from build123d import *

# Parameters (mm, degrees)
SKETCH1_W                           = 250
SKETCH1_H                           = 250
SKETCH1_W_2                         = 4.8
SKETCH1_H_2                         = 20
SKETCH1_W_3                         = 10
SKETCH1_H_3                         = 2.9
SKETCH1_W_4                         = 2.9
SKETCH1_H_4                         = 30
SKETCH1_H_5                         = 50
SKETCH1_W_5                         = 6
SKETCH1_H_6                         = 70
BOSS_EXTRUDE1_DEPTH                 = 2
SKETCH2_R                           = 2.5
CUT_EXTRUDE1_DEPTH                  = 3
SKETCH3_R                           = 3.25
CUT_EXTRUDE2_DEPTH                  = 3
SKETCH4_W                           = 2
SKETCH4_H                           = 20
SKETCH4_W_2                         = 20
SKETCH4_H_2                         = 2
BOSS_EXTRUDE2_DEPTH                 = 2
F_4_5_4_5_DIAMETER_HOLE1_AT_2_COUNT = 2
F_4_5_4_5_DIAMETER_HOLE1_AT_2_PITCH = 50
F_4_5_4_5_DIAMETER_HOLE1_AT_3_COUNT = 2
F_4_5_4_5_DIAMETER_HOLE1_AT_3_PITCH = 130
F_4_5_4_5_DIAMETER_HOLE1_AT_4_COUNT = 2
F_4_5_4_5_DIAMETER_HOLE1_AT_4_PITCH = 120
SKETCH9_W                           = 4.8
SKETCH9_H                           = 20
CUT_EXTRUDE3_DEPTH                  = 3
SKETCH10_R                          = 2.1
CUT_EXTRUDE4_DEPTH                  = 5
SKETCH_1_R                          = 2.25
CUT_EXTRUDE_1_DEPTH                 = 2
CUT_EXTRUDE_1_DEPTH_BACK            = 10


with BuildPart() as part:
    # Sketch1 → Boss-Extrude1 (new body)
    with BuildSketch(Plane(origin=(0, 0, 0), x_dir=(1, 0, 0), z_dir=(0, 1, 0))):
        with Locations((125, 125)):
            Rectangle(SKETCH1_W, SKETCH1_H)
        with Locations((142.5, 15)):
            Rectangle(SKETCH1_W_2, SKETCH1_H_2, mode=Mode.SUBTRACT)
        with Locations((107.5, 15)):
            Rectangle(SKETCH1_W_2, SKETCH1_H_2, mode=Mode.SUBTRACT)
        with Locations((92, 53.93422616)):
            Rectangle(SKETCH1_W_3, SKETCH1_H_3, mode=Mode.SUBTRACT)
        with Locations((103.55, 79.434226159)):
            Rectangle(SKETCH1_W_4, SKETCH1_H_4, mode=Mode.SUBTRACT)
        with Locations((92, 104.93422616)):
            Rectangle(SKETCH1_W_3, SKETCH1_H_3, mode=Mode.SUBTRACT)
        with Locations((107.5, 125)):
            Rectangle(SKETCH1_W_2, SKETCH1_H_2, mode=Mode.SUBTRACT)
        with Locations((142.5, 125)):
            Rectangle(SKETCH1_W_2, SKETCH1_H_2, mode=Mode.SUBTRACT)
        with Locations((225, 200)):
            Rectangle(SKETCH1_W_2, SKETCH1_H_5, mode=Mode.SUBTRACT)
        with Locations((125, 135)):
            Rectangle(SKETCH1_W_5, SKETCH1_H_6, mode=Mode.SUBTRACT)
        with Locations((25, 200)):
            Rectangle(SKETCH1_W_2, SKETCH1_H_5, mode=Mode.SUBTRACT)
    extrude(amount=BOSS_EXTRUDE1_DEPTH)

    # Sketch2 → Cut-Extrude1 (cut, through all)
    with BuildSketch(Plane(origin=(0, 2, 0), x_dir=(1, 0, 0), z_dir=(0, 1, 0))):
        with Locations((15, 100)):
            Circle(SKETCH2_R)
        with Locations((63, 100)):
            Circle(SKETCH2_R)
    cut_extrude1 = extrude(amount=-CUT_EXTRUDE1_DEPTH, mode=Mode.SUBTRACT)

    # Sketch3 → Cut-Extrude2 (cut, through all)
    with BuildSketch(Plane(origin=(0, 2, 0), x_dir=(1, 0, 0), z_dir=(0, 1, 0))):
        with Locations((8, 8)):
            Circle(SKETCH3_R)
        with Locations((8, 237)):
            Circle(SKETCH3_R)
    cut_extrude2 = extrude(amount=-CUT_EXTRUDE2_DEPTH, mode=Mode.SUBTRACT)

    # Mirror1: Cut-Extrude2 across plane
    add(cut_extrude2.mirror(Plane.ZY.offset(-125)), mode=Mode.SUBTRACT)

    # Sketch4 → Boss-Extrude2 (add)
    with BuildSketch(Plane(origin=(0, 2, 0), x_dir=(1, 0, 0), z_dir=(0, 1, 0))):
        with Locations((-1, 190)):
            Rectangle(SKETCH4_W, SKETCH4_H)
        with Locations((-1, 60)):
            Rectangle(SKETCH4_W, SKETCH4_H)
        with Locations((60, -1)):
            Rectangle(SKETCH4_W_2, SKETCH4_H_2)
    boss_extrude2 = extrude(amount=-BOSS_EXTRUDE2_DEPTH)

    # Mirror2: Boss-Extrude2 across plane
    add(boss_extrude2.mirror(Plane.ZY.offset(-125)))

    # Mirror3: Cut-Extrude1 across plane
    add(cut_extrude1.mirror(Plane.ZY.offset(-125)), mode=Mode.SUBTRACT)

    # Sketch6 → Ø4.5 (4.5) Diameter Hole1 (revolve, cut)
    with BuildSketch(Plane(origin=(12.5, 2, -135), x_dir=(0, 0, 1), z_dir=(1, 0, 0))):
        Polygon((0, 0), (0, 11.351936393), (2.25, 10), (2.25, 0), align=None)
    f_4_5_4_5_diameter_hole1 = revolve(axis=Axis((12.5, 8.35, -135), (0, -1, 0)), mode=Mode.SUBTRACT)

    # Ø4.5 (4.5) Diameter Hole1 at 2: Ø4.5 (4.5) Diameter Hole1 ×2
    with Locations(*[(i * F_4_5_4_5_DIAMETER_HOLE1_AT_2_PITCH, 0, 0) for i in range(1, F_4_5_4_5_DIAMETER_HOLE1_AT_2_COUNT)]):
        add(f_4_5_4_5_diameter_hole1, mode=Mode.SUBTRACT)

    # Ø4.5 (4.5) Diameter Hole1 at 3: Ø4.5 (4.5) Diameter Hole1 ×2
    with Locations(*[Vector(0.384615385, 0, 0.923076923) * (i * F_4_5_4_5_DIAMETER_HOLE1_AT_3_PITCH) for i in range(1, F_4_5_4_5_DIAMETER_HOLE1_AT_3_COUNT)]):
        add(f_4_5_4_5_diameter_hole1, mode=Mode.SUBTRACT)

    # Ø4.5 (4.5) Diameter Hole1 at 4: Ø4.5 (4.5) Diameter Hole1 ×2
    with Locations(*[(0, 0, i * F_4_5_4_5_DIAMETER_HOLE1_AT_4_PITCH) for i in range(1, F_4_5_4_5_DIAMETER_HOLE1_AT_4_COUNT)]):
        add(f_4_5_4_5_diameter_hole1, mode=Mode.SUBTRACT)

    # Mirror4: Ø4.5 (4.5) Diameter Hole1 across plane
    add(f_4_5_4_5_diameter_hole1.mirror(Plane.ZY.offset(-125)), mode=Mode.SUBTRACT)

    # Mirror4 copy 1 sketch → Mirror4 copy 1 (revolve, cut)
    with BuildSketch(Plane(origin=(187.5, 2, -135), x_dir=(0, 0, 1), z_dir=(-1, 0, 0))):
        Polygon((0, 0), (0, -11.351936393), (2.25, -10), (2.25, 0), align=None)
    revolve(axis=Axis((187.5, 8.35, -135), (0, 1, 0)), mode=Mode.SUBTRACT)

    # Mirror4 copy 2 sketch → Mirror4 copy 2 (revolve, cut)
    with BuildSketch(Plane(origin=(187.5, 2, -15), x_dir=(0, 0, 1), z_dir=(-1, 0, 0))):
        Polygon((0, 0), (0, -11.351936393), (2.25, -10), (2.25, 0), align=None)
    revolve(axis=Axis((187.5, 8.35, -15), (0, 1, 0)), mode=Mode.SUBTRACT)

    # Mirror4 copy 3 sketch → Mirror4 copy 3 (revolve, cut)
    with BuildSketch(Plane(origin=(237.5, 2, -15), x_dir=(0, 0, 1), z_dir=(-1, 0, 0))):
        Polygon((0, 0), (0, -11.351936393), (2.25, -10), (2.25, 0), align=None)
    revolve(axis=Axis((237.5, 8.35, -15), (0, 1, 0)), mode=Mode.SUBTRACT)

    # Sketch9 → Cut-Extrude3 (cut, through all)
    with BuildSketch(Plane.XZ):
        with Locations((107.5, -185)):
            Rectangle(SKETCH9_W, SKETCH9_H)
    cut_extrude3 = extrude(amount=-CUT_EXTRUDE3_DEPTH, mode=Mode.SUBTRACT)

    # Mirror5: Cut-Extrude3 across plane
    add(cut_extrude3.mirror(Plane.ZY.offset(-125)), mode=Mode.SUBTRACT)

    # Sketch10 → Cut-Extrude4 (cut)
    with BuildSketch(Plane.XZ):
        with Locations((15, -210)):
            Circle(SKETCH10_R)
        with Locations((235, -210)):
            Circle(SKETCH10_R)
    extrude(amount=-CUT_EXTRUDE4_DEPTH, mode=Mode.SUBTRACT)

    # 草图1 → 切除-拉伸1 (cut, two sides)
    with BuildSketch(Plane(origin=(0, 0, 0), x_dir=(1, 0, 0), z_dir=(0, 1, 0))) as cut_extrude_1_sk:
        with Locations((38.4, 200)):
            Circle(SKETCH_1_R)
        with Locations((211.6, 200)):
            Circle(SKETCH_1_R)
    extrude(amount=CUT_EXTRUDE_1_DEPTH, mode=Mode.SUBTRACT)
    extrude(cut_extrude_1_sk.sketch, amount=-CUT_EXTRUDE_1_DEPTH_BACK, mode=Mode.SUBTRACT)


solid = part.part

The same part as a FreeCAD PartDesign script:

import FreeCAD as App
import Part
import Sketcher

V = App.Vector
Q = App.Units.Quantity

doc = App.newDocument("Part")
body = doc.addObject("PartDesign::Body", "Body")

# Sketch on XZ plane
sketch1 = doc.addObject("Sketcher::SketchObject", "Sketch")
body.addObject(sketch1)
sketch1.AttachmentSupport = (doc.XZ_Plane, [""])
sketch1.MapMode = "FlatFace"
sketch1.addGeometry(Part.LineSegment(V(0, -250, 0), V(0, 0, 0)), False)
sketch1.addGeometry(Part.LineSegment(V(0, 0, 0), V(250, 0, 0)), False)
sketch1.addGeometry(Part.LineSegment(V(250, 0, 0), V(250, -250, 0)), False)
sketch1.addGeometry(Part.LineSegment(V(250, -250, 0), V(0, -250, 0)), False)
sketch1.addGeometry(Part.LineSegment(V(109.9, -5, 0), V(105.1, -5, 0)), False)
sketch1.addGeometry(Part.LineSegment(V(105.1, -5, 0), V(105.1, -25, 0)), False)
sketch1.addGeometry(Part.LineSegment(V(105.1, -25, 0), V(109.9, -25, 0)), False)
sketch1.addGeometry(Part.LineSegment(V(109.9, -25, 0), V(109.9, -5, 0)), False)
sketch1.addGeometry(Part.LineSegment(V(97, -52.484226, 0), V(87, -52.484226, 0)), False)
sketch1.addGeometry(Part.LineSegment(V(87, -52.484226, 0), V(87, -55.384226, 0)), False)
sketch1.addGeometry(Part.LineSegment(V(87, -55.384226, 0), V(97, -55.384226, 0)), False)
sketch1.addGeometry(Part.LineSegment(V(97, -55.384226, 0), V(97, -52.484226, 0)), False)
sketch1.addGeometry(Part.LineSegment(V(105, -64.434226, 0), V(102.1, -64.434226, 0)), False)
sketch1.addGeometry(Part.LineSegment(V(102.1, -64.434226, 0), V(102.1, -94.434226, 0)), False)
sketch1.addGeometry(Part.LineSegment(V(102.1, -94.434226, 0), V(105, -94.434226, 0)), False)
sketch1.addGeometry(Part.LineSegment(V(105, -94.434226, 0), V(105, -64.434226, 0)), False)
sketch1.addGeometry(Part.LineSegment(V(97, -103.484226, 0), V(87, -103.484226, 0)), False)
sketch1.addGeometry(Part.LineSegment(V(87, -103.484226, 0), V(87, -106.384226, 0)), False)
sketch1.addGeometry(Part.LineSegment(V(87, -106.384226, 0), V(97, -106.384226, 0)), False)
sketch1.addGeometry(Part.LineSegment(V(97, -106.384226, 0), V(97, -103.484226, 0)), False)
sketch1.addGeometry(Part.LineSegment(V(144.9, -5, 0), V(140.1, -5, 0)), False)
sketch1.addGeometry(Part.LineSegment(V(140.1, -5, 0), V(140.1, -25, 0)), False)
sketch1.addGeometry(Part.LineSegment(V(140.1, -25, 0), V(144.9, -25, 0)), False)
sketch1.addGeometry(Part.LineSegment(V(144.9, -25, 0), V(144.9, -5, 0)), False)
sketch1.addGeometry(Part.LineSegment(V(109.9, -115, 0), V(105.1, -115, 0)), False)
sketch1.addGeometry(Part.LineSegment(V(105.1, -115, 0), V(105.1, -135, 0)), False)
sketch1.addGeometry(Part.LineSegment(V(105.1, -135, 0), V(109.9, -135, 0)), False)
sketch1.addGeometry(Part.LineSegment(V(109.9, -135, 0), V(109.9, -115, 0)), False)
sketch1.addGeometry(Part.LineSegment(V(27.4, -175, 0), V(22.6, -175, 0)), False)
sketch1.addGeometry(Part.LineSegment(V(22.6, -175, 0), V(22.6, -225, 0)), False)
sketch1.addGeometry(Part.LineSegment(V(22.6, -225, 0), V(27.4, -225, 0)), False)
sketch1.addGeometry(Part.LineSegment(V(27.4, -225, 0), V(27.4, -175, 0)), False)
sketch1.addGeometry(Part.LineSegment(V(144.9, -115, 0), V(140.1, -115, 0)), False)
sketch1.addGeometry(Part.LineSegment(V(140.1, -115, 0), V(140.1, -135, 0)), False)
sketch1.addGeometry(Part.LineSegment(V(140.1, -135, 0), V(144.9, -135, 0)), False)
sketch1.addGeometry(Part.LineSegment(V(144.9, -135, 0), V(144.9, -115, 0)), False)
sketch1.addGeometry(Part.LineSegment(V(128, -100, 0), V(122, -100, 0)), False)
sketch1.addGeometry(Part.LineSegment(V(122, -100, 0), V(122, -170, 0)), False)
sketch1.addGeometry(Part.LineSegment(V(122, -170, 0), V(128, -170, 0)), False)
sketch1.addGeometry(Part.LineSegment(V(128, -170, 0), V(128, -100, 0)), False)
sketch1.addGeometry(Part.LineSegment(V(227.4, -175, 0), V(222.6, -175, 0)), False)
sketch1.addGeometry(Part.LineSegment(V(222.6, -175, 0), V(222.6, -225, 0)), False)
sketch1.addGeometry(Part.LineSegment(V(222.6, -225, 0), V(227.4, -225, 0)), False)
sketch1.addGeometry(Part.LineSegment(V(227.4, -225, 0), V(227.4, -175, 0)), False)
sketch1.addConstraint(Sketcher.Constraint("Coincident", 0, 2, 1, 1))
sketch1.addConstraint(Sketcher.Constraint("Coincident", 1, 2, 2, 1))
sketch1.addConstraint(Sketcher.Constraint("Coincident", 2, 2, 3, 1))
sketch1.addConstraint(Sketcher.Constraint("Coincident", 3, 2, 0, 1))
sketch1.addConstraint(Sketcher.Constraint("Coincident", 4, 2, 5, 1))
sketch1.addConstraint(Sketcher.Constraint("Coincident", 5, 2, 6, 1))
sketch1.addConstraint(Sketcher.Constraint("Coincident", 6, 2, 7, 1))
sketch1.addConstraint(Sketcher.Constraint("Coincident", 7, 2, 4, 1))
sketch1.addConstraint(Sketcher.Constraint("Coincident", 8, 2, 9, 1))
sketch1.addConstraint(Sketcher.Constraint("Coincident", 9, 2, 10, 1))
sketch1.addConstraint(Sketcher.Constraint("Coincident", 10, 2, 11, 1))
sketch1.addConstraint(Sketcher.Constraint("Coincident", 11, 2, 8, 1))
sketch1.addConstraint(Sketcher.Constraint("Coincident", 12, 2, 13, 1))
sketch1.addConstraint(Sketcher.Constraint("Coincident", 13, 2, 14, 1))
sketch1.addConstraint(Sketcher.Constraint("Coincident", 14, 2, 15, 1))
sketch1.addConstraint(Sketcher.Constraint("Coincident", 15, 2, 12, 1))
sketch1.addConstraint(Sketcher.Constraint("Coincident", 16, 2, 17, 1))
sketch1.addConstraint(Sketcher.Constraint("Coincident", 17, 2, 18, 1))
sketch1.addConstraint(Sketcher.Constraint("Coincident", 18, 2, 19, 1))
sketch1.addConstraint(Sketcher.Constraint("Coincident", 19, 2, 16, 1))
sketch1.addConstraint(Sketcher.Constraint("Coincident", 20, 2, 21, 1))
sketch1.addConstraint(Sketcher.Constraint("Coincident", 21, 2, 22, 1))
sketch1.addConstraint(Sketcher.Constraint("Coincident", 22, 2, 23, 1))
sketch1.addConstraint(Sketcher.Constraint("Coincident", 23, 2, 20, 1))
sketch1.addConstraint(Sketcher.Constraint("Coincident", 24, 2, 25, 1))
sketch1.addConstraint(Sketcher.Constraint("Coincident", 25, 2, 26, 1))
sketch1.addConstraint(Sketcher.Constraint("Coincident", 26, 2, 27, 1))
sketch1.addConstraint(Sketcher.Constraint("Coincident", 27, 2, 24, 1))
sketch1.addConstraint(Sketcher.Constraint("Coincident", 28, 2, 29, 1))
sketch1.addConstraint(Sketcher.Constraint("Coincident", 29, 2, 30, 1))
sketch1.addConstraint(Sketcher.Constraint("Coincident", 30, 2, 31, 1))
sketch1.addConstraint(Sketcher.Constraint("Coincident", 31, 2, 28, 1))
sketch1.addConstraint(Sketcher.Constraint("Coincident", 32, 2, 33, 1))
sketch1.addConstraint(Sketcher.Constraint("Coincident", 33, 2, 34, 1))
sketch1.addConstraint(Sketcher.Constraint("Coincident", 34, 2, 35, 1))
sketch1.addConstraint(Sketcher.Constraint("Coincident", 35, 2, 32, 1))
sketch1.addConstraint(Sketcher.Constraint("Coincident", 36, 2, 37, 1))
sketch1.addConstraint(Sketcher.Constraint("Coincident", 37, 2, 38, 1))
sketch1.addConstraint(Sketcher.Constraint("Coincident", 38, 2, 39, 1))
sketch1.addConstraint(Sketcher.Constraint("Coincident", 39, 2, 36, 1))
sketch1.addConstraint(Sketcher.Constraint("Coincident", 40, 2, 41, 1))
sketch1.addConstraint(Sketcher.Constraint("Coincident", 41, 2, 42, 1))
sketch1.addConstraint(Sketcher.Constraint("Coincident", 42, 2, 43, 1))
sketch1.addConstraint(Sketcher.Constraint("Coincident", 43, 2, 40, 1))
sketch1.addConstraint(Sketcher.Constraint("Vertical", 0))
sketch1.addConstraint(Sketcher.Constraint("Horizontal", 1))
sketch1.addConstraint(Sketcher.Constraint("Vertical", 2))
sketch1.addConstraint(Sketcher.Constraint("Horizontal", 3))
sketch1.addConstraint(Sketcher.Constraint("Horizontal", 4))
sketch1.addConstraint(Sketcher.Constraint("Vertical", 5))
sketch1.addConstraint(Sketcher.Constraint("Horizontal", 6))
sketch1.addConstraint(Sketcher.Constraint("Vertical", 7))
sketch1.addConstraint(Sketcher.Constraint("Horizontal", 8))
sketch1.addConstraint(Sketcher.Constraint("Vertical", 9))
sketch1.addConstraint(Sketcher.Constraint("Horizontal", 10))
sketch1.addConstraint(Sketcher.Constraint("Vertical", 11))
sketch1.addConstraint(Sketcher.Constraint("Horizontal", 12))
sketch1.addConstraint(Sketcher.Constraint("Vertical", 13))
sketch1.addConstraint(Sketcher.Constraint("Horizontal", 14))
sketch1.addConstraint(Sketcher.Constraint("Vertical", 15))
sketch1.addConstraint(Sketcher.Constraint("Horizontal", 16))
sketch1.addConstraint(Sketcher.Constraint("Vertical", 17))
sketch1.addConstraint(Sketcher.Constraint("Horizontal", 18))
sketch1.addConstraint(Sketcher.Constraint("Vertical", 19))
sketch1.addConstraint(Sketcher.Constraint("Horizontal", 20))
sketch1.addConstraint(Sketcher.Constraint("Vertical", 21))
sketch1.addConstraint(Sketcher.Constraint("Horizontal", 22))
sketch1.addConstraint(Sketcher.Constraint("Vertical", 23))
sketch1.addConstraint(Sketcher.Constraint("Horizontal", 24))
sketch1.addConstraint(Sketcher.Constraint("Vertical", 25))
sketch1.addConstraint(Sketcher.Constraint("Horizontal", 26))
sketch1.addConstraint(Sketcher.Constraint("Vertical", 27))
sketch1.addConstraint(Sketcher.Constraint("Horizontal", 28))
sketch1.addConstraint(Sketcher.Constraint("Vertical", 29))
sketch1.addConstraint(Sketcher.Constraint("Horizontal", 30))
sketch1.addConstraint(Sketcher.Constraint("Vertical", 31))
sketch1.addConstraint(Sketcher.Constraint("Horizontal", 32))
sketch1.addConstraint(Sketcher.Constraint("Vertical", 33))
sketch1.addConstraint(Sketcher.Constraint("Horizontal", 34))
sketch1.addConstraint(Sketcher.Constraint("Vertical", 35))
sketch1.addConstraint(Sketcher.Constraint("Horizontal", 36))
sketch1.addConstraint(Sketcher.Constraint("Vertical", 37))
sketch1.addConstraint(Sketcher.Constraint("Horizontal", 38))
sketch1.addConstraint(Sketcher.Constraint("Vertical", 39))
sketch1.addConstraint(Sketcher.Constraint("Horizontal", 40))
sketch1.addConstraint(Sketcher.Constraint("Vertical", 41))
sketch1.addConstraint(Sketcher.Constraint("Horizontal", 42))
sketch1.addConstraint(Sketcher.Constraint("Vertical", 43))
sketch1.addConstraint(Sketcher.Constraint("Coincident", 0, 2, -1, 1))
sketch1.addConstraint(Sketcher.Constraint("Horizontal", 7, 2, 20, 2))
sketch1.addConstraint(Sketcher.Constraint("Horizontal", 6, 2, 21, 2))
sketch1.addConstraint(Sketcher.Constraint("Horizontal", 27, 2, 32, 2))
sketch1.addConstraint(Sketcher.Constraint("Horizontal", 26, 2, 33, 2))
sketch1.addConstraint(Sketcher.Constraint("Horizontal", 31, 2, 40, 2))
sketch1.addConstraint(Sketcher.Constraint("Horizontal", 30, 2, 41, 2))
sketch1.addConstraint(Sketcher.Constraint("Vertical", 9, 2, 16, 2))
sketch1.addConstraint(Sketcher.Constraint("Vertical", 11, 2, 18, 2))
sketch1.addConstraint(Sketcher.Constraint("Vertical", 5, 2, 24, 2))
sketch1.addConstraint(Sketcher.Constraint("Vertical", 7, 2, 26, 2))
sketch1.addConstraint(Sketcher.Constraint("Vertical", 21, 2, 32, 2))
sketch1.addConstraint(Sketcher.Constraint("Vertical", 23, 2, 34, 2))
sketch1.addConstraint(Sketcher.Constraint("Equal", 6, 20))
sketch1.addConstraint(Sketcher.Constraint("Equal", 26, 28))
sketch1.addConstraint(Sketcher.Constraint("Equal", 34, 40))
sketch1.addConstraint(Sketcher.Constraint("Equal", 3, 0))
sketch1.addConstraint(Sketcher.Constraint("Equal", 14, 9))
sketch1.addConstraint(Sketcher.Constraint("Equal", 11, 17))
sketch1.addConstraint(Sketcher.Constraint("Equal", 23, 25))
sketch1.addConstraint(Sketcher.Constraint("DistanceX", 1, 1, 1, 2, 250.0))
sketch1.addConstraint(Sketcher.Constraint("DistanceX", 8, 2, 8, 1, 10.0))
sketch1.addConstraint(Sketcher.Constraint("DistanceX", 36, 2, 36, 1, 6.0))
sketch1.addConstraint(Sketcher.Constraint("DistanceY", 5, 2, 5, 1, 20.0))
sketch1.addConstraint(Sketcher.Constraint("DistanceY", 13, 2, 13, 1, 30.0))
sketch1.addConstraint(Sketcher.Constraint("DistanceY", 29, 2, 29, 1, 50.0))
sketch1.addConstraint(Sketcher.Constraint("DistanceY", 37, 2, 37, 1, 70.0))
sketch1.addConstraint(Sketcher.Constraint("DistanceX", 4, 2, 4, 1, 4.8))
sketch1.addConstraint(Sketcher.Constraint("DistanceX", 12, 2, 12, 1, 2.9))
sketch1.addConstraint(Sketcher.Constraint("DistanceY", 4, 2, -1, 1, 5.0))
sketch1.addConstraint(Sketcher.Constraint("DistanceX", -1, 1, 8, 2, 87.0))
sketch1.addConstraint(Sketcher.Constraint("DistanceX", -1, 1, 14, 2, 105.0))
sketch1.addConstraint(Sketcher.Constraint("DistanceY", 24, 2, -1, 1, 115.0))
sketch1.addConstraint(Sketcher.Constraint("DistanceY", 28, 2, -1, 1, 175.0))
sketch1.addConstraint(Sketcher.Constraint("DistanceX", -1, 1, 36, 2, 122.0))
sketch1.addConstraint(Sketcher.Constraint("DistanceY", 36, 2, -1, 1, 100.0))
sketch1.addConstraint(Sketcher.Constraint("DistanceX", 12, 2, 5, 2, 3.0))
sketch1.addConstraint(Sketcher.Constraint("DistanceX", 4, 2, 20, 2, 35.0))
sketch1.addConstraint(Sketcher.Constraint("DistanceX", -1, 1, 28, 2, 22.6))
sketch1.addConstraint(Sketcher.Constraint("DistanceX", -1, 1, 40, 2, 222.6))
sketch1.addConstraint(Sketcher.Constraint("DistanceY", 16, 2, 9, 2, 48.1))
sketch1.addConstraint(Sketcher.Constraint("DistanceY", 12, 2, 10, 2, 9.05))
sketch1.addConstraint(Sketcher.Constraint("DistanceY", 8, 2, -1, 1, 52.484226))
pad1 = doc.addObject("PartDesign::Pad", "Pad")
body.addObject(pad1)
pad1.Profile = sketch1
pad1.Length = 2
pad1.Reversed = True

# Sketch on XZ plane
sketch2 = doc.addObject("Sketcher::SketchObject", "Sketch001")
body.addObject(sketch2)
sketch2.AttachmentSupport = (doc.XZ_Plane, [""])
sketch2.MapMode = "FlatFace"
sketch2.AttachmentOffset = App.Placement(V(0, 0, -2), App.Rotation())
sketch2.addGeometry(Part.Circle(V(15, -100, 0), V(0, 0, 1), 2.5), False)
sketch2.addGeometry(Part.Circle(V(63, -100, 0), V(0, 0, 1), 2.5), False)
sketch2.addConstraint(Sketcher.Constraint("Equal", 0, 1))
sketch2.addConstraint(Sketcher.Constraint("Horizontal", 0, 3, 1, 3))
sketch2.addConstraint(Sketcher.Constraint("Diameter", 0, 5.0))
sketch2.addConstraint(Sketcher.Constraint("DistanceX", -1, 1, 0, 3, 15.0))
sketch2.addConstraint(Sketcher.Constraint("DistanceY", 0, 3, -1, 1, 100.0))
sketch2.addConstraint(Sketcher.Constraint("DistanceX", -1, 1, 1, 3, 63.0))
pocket1 = doc.addObject("PartDesign::Pocket", "Pocket")
body.addObject(pocket1)
pocket1.Profile = sketch2
pocket1.Type = "ThroughAll"
pocket1.Reversed = True

# Sketch on XZ plane
sketch3 = doc.addObject("Sketcher::SketchObject", "Sketch002")
body.addObject(sketch3)
sketch3.AttachmentSupport = (doc.XZ_Plane, [""])
sketch3.MapMode = "FlatFace"
sketch3.AttachmentOffset = App.Placement(V(0, 0, -2), App.Rotation())
sketch3.addGeometry(Part.Circle(V(8, -8, 0), V(0, 0, 1), 3.25), False)
sketch3.addGeometry(Part.Circle(V(8, -237, 0), V(0, 0, 1), 3.25), False)
sketch3.addConstraint(Sketcher.Constraint("Equal", 0, 1))
sketch3.addConstraint(Sketcher.Constraint("Vertical", 0, 3, 1, 3))
sketch3.addConstraint(Sketcher.Constraint("Diameter", 0, 6.5))
sketch3.addConstraint(Sketcher.Constraint("DistanceX", -1, 1, 0, 3, 8.0))
sketch3.addConstraint(Sketcher.Constraint("DistanceY", 0, 3, -1, 1, 8.0))
sketch3.addConstraint(Sketcher.Constraint("DistanceY", 1, 3, -1, 1, 237.0))
pocket2 = doc.addObject("PartDesign::Pocket", "Pocket001")
body.addObject(pocket2)
pocket2.Profile = sketch3
pocket2.Type = "ThroughAll"
pocket2.Reversed = True
doc.recompute()

datumplane = doc.addObject("PartDesign::Plane", "DatumPlane")
body.addObject(datumplane)
datumplane.AttachmentSupport = (doc.YZ_Plane, [""])
datumplane.MapMode = "FlatFace"
datumplane.AttachmentOffset = App.Placement(V(0, 0, 125), App.Rotation())
mirrored = doc.addObject("PartDesign::Mirrored", "Mirrored")
body.addObject(mirrored)
mirrored.Originals = [pocket2]
mirrored.MirrorPlane = (datumplane, [""])
body.Tip = mirrored

# Sketch on XZ plane
sketch4 = doc.addObject("Sketcher::SketchObject", "Sketch003")
body.addObject(sketch4)
sketch4.AttachmentSupport = (doc.XZ_Plane, [""])
sketch4.MapMode = "FlatFace"
sketch4.AttachmentOffset = App.Placement(V(0, 0, -2), App.Rotation())
sketch4.addGeometry(Part.LineSegment(V(-2, -200, 0), V(-2, -180, 0)), False)
sketch4.addGeometry(Part.LineSegment(V(-2, -180, 0), V(0, -180, 0)), False)
sketch4.addGeometry(Part.LineSegment(V(0, -180, 0), V(0, -200, 0)), False)
sketch4.addGeometry(Part.LineSegment(V(0, -200, 0), V(-2, -200, 0)), False)
sketch4.addGeometry(Part.LineSegment(V(-2, -70, 0), V(-2, -50, 0)), False)
sketch4.addGeometry(Part.LineSegment(V(-2, -50, 0), V(0, -50, 0)), False)
sketch4.addGeometry(Part.LineSegment(V(0, -50, 0), V(0, -70, 0)), False)
sketch4.addGeometry(Part.LineSegment(V(0, -70, 0), V(-2, -70, 0)), False)
sketch4.addGeometry(Part.LineSegment(V(50, 0, 0), V(50, 2, 0)), False)
sketch4.addGeometry(Part.LineSegment(V(50, 2, 0), V(70, 2, 0)), False)
sketch4.addGeometry(Part.LineSegment(V(70, 2, 0), V(70, 0, 0)), False)
sketch4.addGeometry(Part.LineSegment(V(70, 0, 0), V(50, 0, 0)), False)
sketch4.addConstraint(Sketcher.Constraint("Coincident", 0, 2, 1, 1))
sketch4.addConstraint(Sketcher.Constraint("Coincident", 1, 2, 2, 1))
sketch4.addConstraint(Sketcher.Constraint("Coincident", 2, 2, 3, 1))
sketch4.addConstraint(Sketcher.Constraint("Coincident", 3, 2, 0, 1))
sketch4.addConstraint(Sketcher.Constraint("Coincident", 4, 2, 5, 1))
sketch4.addConstraint(Sketcher.Constraint("Coincident", 5, 2, 6, 1))
sketch4.addConstraint(Sketcher.Constraint("Coincident", 6, 2, 7, 1))
sketch4.addConstraint(Sketcher.Constraint("Coincident", 7, 2, 4, 1))
sketch4.addConstraint(Sketcher.Constraint("Coincident", 8, 2, 9, 1))
sketch4.addConstraint(Sketcher.Constraint("Coincident", 9, 2, 10, 1))
sketch4.addConstraint(Sketcher.Constraint("Coincident", 10, 2, 11, 1))
sketch4.addConstraint(Sketcher.Constraint("Coincident", 11, 2, 8, 1))
sketch4.addConstraint(Sketcher.Constraint("Vertical", 0))
sketch4.addConstraint(Sketcher.Constraint("Horizontal", 1))
sketch4.addConstraint(Sketcher.Constraint("Vertical", 2))
sketch4.addConstraint(Sketcher.Constraint("Horizontal", 3))
sketch4.addConstraint(Sketcher.Constraint("Vertical", 4))
sketch4.addConstraint(Sketcher.Constraint("Horizontal", 5))
sketch4.addConstraint(Sketcher.Constraint("Vertical", 6))
sketch4.addConstraint(Sketcher.Constraint("Horizontal", 7))
sketch4.addConstraint(Sketcher.Constraint("Vertical", 8))
sketch4.addConstraint(Sketcher.Constraint("Horizontal", 9))
sketch4.addConstraint(Sketcher.Constraint("Vertical", 10))
sketch4.addConstraint(Sketcher.Constraint("Horizontal", 11))
sketch4.addConstraint(Sketcher.Constraint("PointOnObject", 1, 2, -2))
sketch4.addConstraint(Sketcher.Constraint("PointOnObject", 5, 2, -2))
sketch4.addConstraint(Sketcher.Constraint("PointOnObject", 10, 2, -1))
sketch4.addConstraint(Sketcher.Constraint("Vertical", 3, 2, 4, 2))
sketch4.addConstraint(Sketcher.Constraint("Equal", 11, 0))
sketch4.addConstraint(Sketcher.Constraint("Equal", 2, 4))
sketch4.addConstraint(Sketcher.Constraint("Equal", 7, 8))
sketch4.addConstraint(Sketcher.Constraint("DistanceX", 1, 1, 1, 2, 2.0))
sketch4.addConstraint(Sketcher.Constraint("DistanceX", 9, 1, 9, 2, 20.0))
sketch4.addConstraint(Sketcher.Constraint("DistanceY", 0, 2, -1, 1, 180.0))
sketch4.addConstraint(Sketcher.Constraint("DistanceY", 4, 2, -1, 1, 50.0))
sketch4.addConstraint(Sketcher.Constraint("DistanceX", -1, 1, 8, 2, 50.0))
pad2 = doc.addObject("PartDesign::Pad", "Pad001")
body.addObject(pad2)
pad2.Profile = sketch4
pad2.Length = 2
doc.recompute()

datumplane2 = doc.addObject("PartDesign::Plane", "DatumPlane001")
body.addObject(datumplane2)
datumplane2.AttachmentSupport = (doc.YZ_Plane, [""])
datumplane2.MapMode = "FlatFace"
datumplane2.AttachmentOffset = App.Placement(V(0, 0, 125), App.Rotation())
mirrored2 = doc.addObject("PartDesign::Mirrored", "Mirrored001")
body.addObject(mirrored2)
mirrored2.Originals = [pad2]
mirrored2.MirrorPlane = (datumplane2, [""])
body.Tip = mirrored2
doc.recompute()

datumplane3 = doc.addObject("PartDesign::Plane", "DatumPlane002")
body.addObject(datumplane3)
datumplane3.AttachmentSupport = (doc.YZ_Plane, [""])
datumplane3.MapMode = "FlatFace"
datumplane3.AttachmentOffset = App.Placement(V(0, 0, 125), App.Rotation())
mirrored3 = doc.addObject("PartDesign::Mirrored", "Mirrored002")
body.addObject(mirrored3)
mirrored3.Originals = [pocket1]
mirrored3.MirrorPlane = (datumplane3, [""])
body.Tip = mirrored3

# Sketch on YZ plane
sketch5 = doc.addObject("Sketcher::SketchObject", "Sketch004")
body.addObject(sketch5)
sketch5.AttachmentSupport = (doc.YZ_Plane, [""])
sketch5.MapMode = "FlatFace"
sketch5.AttachmentOffset = App.Placement(V(0, 0, 12.5), App.Rotation())
sketch5.addGeometry(Part.LineSegment(V(-9.351936, -135, 0), V(2, -135, 0)), False)
sketch5.addGeometry(Part.LineSegment(V(2, -135, 0), V(2, -132.75, 0)), False)
sketch5.addGeometry(Part.LineSegment(V(2, -132.75, 0), V(-8, -132.75, 0)), False)
sketch5.addGeometry(Part.LineSegment(V(-8, -132.75, 0), V(-9.351936, -135, 0)), False)
sketch5.addGeometry(Part.LineSegment(V(2, -135, 0), V(-9.351936, -135, 0)), True)  # axis
sketch5.addConstraint(Sketcher.Constraint("Coincident", 0, 2, 1, 1))
sketch5.addConstraint(Sketcher.Constraint("Coincident", 1, 2, 2, 1))
sketch5.addConstraint(Sketcher.Constraint("Coincident", 2, 2, 3, 1))
sketch5.addConstraint(Sketcher.Constraint("Coincident", 3, 2, 0, 1))
sketch5.addConstraint(Sketcher.Constraint("Horizontal", 0))
sketch5.addConstraint(Sketcher.Constraint("Vertical", 1))
sketch5.addConstraint(Sketcher.Constraint("Horizontal", 2))
sketch5.addConstraint(Sketcher.Constraint("Horizontal", 4))
sketch5.addConstraint(Sketcher.Constraint("Coincident", 4, 1, 0, 2))
sketch5.addConstraint(Sketcher.Constraint("Equal", 0, 4))
sketch5.addConstraint(Sketcher.Constraint("DistanceX", 2, 2, 2, 1, 10.0))
sketch5.addConstraint(Sketcher.Constraint("Angle", 3, Q("-121 deg")))
sketch5.addConstraint(Sketcher.Constraint("DistanceX", -1, 1, 0, 2, 2.0))
sketch5.addConstraint(Sketcher.Constraint("DistanceY", 0, 2, -1, 1, 135.0))
sketch5.addConstraint(Sketcher.Constraint("DistanceY", 1, 1, 1, 2, 2.25))
groove = doc.addObject("PartDesign::Groove", "Groove")
body.addObject(groove)
groove.Profile = sketch5
groove.ReferenceAxis = (sketch5, ["Axis0"])
groove.Angle = 360
doc.recompute()

linearpattern = doc.addObject("PartDesign::LinearPattern", "LinearPattern")
body.addObject(linearpattern)
linearpattern.Originals = [groove]
linearpattern.Direction = (doc.X_Axis, [""])
linearpattern.Mode = "offset"
linearpattern.Offset = 50
linearpattern.Occurrences = 2
body.Tip = linearpattern
doc.recompute()

datumline = doc.addObject("PartDesign::Line", "DatumLine")
body.addObject(datumline)
datumline.Placement = App.Placement(V(0, 0, 0), App.Rotation(V(0, 0, 1), V(0.384615385, 0, 0.923076923)))
linearpattern2 = doc.addObject("PartDesign::LinearPattern", "LinearPattern001")
body.addObject(linearpattern2)
linearpattern2.Originals = [groove]
linearpattern2.Direction = (datumline, [""])
linearpattern2.Mode = "offset"
linearpattern2.Offset = 130
linearpattern2.Occurrences = 2
body.Tip = linearpattern2
doc.recompute()

linearpattern3 = doc.addObject("PartDesign::LinearPattern", "LinearPattern002")
body.addObject(linearpattern3)
linearpattern3.Originals = [groove]
linearpattern3.Direction = (doc.Z_Axis, [""])
linearpattern3.Mode = "offset"
linearpattern3.Offset = 120
linearpattern3.Occurrences = 2
body.Tip = linearpattern3
doc.recompute()

datumplane4 = doc.addObject("PartDesign::Plane", "DatumPlane003")
body.addObject(datumplane4)
datumplane4.AttachmentSupport = (doc.YZ_Plane, [""])
datumplane4.MapMode = "FlatFace"
datumplane4.AttachmentOffset = App.Placement(V(0, 0, 125), App.Rotation())
mirrored4 = doc.addObject("PartDesign::Mirrored", "Mirrored003")
body.addObject(mirrored4)
mirrored4.Originals = [groove]
mirrored4.MirrorPlane = (datumplane4, [""])
body.Tip = mirrored4

# Sketch on YZ plane
sketch6 = doc.addObject("Sketcher::SketchObject", "Sketch005")
body.addObject(sketch6)
sketch6.AttachmentSupport = (doc.YZ_Plane, [""])
sketch6.MapMode = "FlatFace"
sketch6.AttachmentOffset = App.Placement(V(0, 0, 187.5), App.Rotation())
sketch6.addGeometry(Part.LineSegment(V(2, -135, 0), V(-9.351936, -135, 0)), False)
sketch6.addGeometry(Part.LineSegment(V(-9.351936, -135, 0), V(-8, -132.75, 0)), False)
sketch6.addGeometry(Part.LineSegment(V(-8, -132.75, 0), V(2, -132.75, 0)), False)
sketch6.addGeometry(Part.LineSegment(V(2, -132.75, 0), V(2, -135, 0)), False)
sketch6.addGeometry(Part.LineSegment(V(-9.351936, -135, 0), V(2, -135, 0)), True)  # axis
sketch6.addConstraint(Sketcher.Constraint("Coincident", 0, 2, 1, 1))
sketch6.addConstraint(Sketcher.Constraint("Coincident", 1, 2, 2, 1))
sketch6.addConstraint(Sketcher.Constraint("Coincident", 2, 2, 3, 1))
sketch6.addConstraint(Sketcher.Constraint("Coincident", 3, 2, 0, 1))
sketch6.addConstraint(Sketcher.Constraint("Horizontal", 0))
sketch6.addConstraint(Sketcher.Constraint("Horizontal", 2))
sketch6.addConstraint(Sketcher.Constraint("Vertical", 3))
sketch6.addConstraint(Sketcher.Constraint("Horizontal", 4))
sketch6.addConstraint(Sketcher.Constraint("Coincident", 4, 1, 0, 2))
sketch6.addConstraint(Sketcher.Constraint("Vertical", 2, 2, 4, 2))
sketch6.addConstraint(Sketcher.Constraint("DistanceX", 2, 1, 2, 2, 10.0))
sketch6.addConstraint(Sketcher.Constraint("Angle", 1, Q("59 deg")))
sketch6.addConstraint(Sketcher.Constraint("DistanceY", 0, 2, -1, 1, 135.0))
sketch6.addConstraint(Sketcher.Constraint("DistanceX", 1, 2, -1, 1, 8.0))
sketch6.addConstraint(Sketcher.Constraint("DistanceY", 3, 2, 3, 1, 2.25))
groove2 = doc.addObject("PartDesign::Groove", "Groove001")
body.addObject(groove2)
groove2.Profile = sketch6
groove2.ReferenceAxis = (sketch6, ["Axis0"])
groove2.Angle = 360

# Sketch on YZ plane
sketch7 = doc.addObject("Sketcher::SketchObject", "Sketch006")
body.addObject(sketch7)
sketch7.AttachmentSupport = (doc.YZ_Plane, [""])
sketch7.MapMode = "FlatFace"
sketch7.AttachmentOffset = App.Placement(V(0, 0, 187.5), App.Rotation())
sketch7.addGeometry(Part.LineSegment(V(2, -15, 0), V(-9.351936, -15, 0)), False)
sketch7.addGeometry(Part.LineSegment(V(-9.351936, -15, 0), V(-8, -12.75, 0)), False)
sketch7.addGeometry(Part.LineSegment(V(-8, -12.75, 0), V(2, -12.75, 0)), False)
sketch7.addGeometry(Part.LineSegment(V(2, -12.75, 0), V(2, -15, 0)), False)
sketch7.addGeometry(Part.LineSegment(V(-9.351936, -15, 0), V(2, -15, 0)), True)  # axis
sketch7.addConstraint(Sketcher.Constraint("Coincident", 0, 2, 1, 1))
sketch7.addConstraint(Sketcher.Constraint("Coincident", 1, 2, 2, 1))
sketch7.addConstraint(Sketcher.Constraint("Coincident", 2, 2, 3, 1))
sketch7.addConstraint(Sketcher.Constraint("Coincident", 3, 2, 0, 1))
sketch7.addConstraint(Sketcher.Constraint("Horizontal", 0))
sketch7.addConstraint(Sketcher.Constraint("Horizontal", 2))
sketch7.addConstraint(Sketcher.Constraint("Vertical", 3))
sketch7.addConstraint(Sketcher.Constraint("Horizontal", 4))
sketch7.addConstraint(Sketcher.Constraint("Coincident", 4, 1, 0, 2))
sketch7.addConstraint(Sketcher.Constraint("Vertical", 2, 2, 4, 2))
sketch7.addConstraint(Sketcher.Constraint("DistanceX", 2, 1, 2, 2, 10.0))
sketch7.addConstraint(Sketcher.Constraint("Angle", 1, Q("59 deg")))
sketch7.addConstraint(Sketcher.Constraint("DistanceY", 0, 2, -1, 1, 15.0))
sketch7.addConstraint(Sketcher.Constraint("DistanceX", 1, 2, -1, 1, 8.0))
sketch7.addConstraint(Sketcher.Constraint("DistanceY", 3, 2, 3, 1, 2.25))
groove3 = doc.addObject("PartDesign::Groove", "Groove002")
body.addObject(groove3)
groove3.Profile = sketch7
groove3.ReferenceAxis = (sketch7, ["Axis0"])
groove3.Angle = 360

# Sketch on YZ plane
sketch8 = doc.addObject("Sketcher::SketchObject", "Sketch007")
body.addObject(sketch8)
sketch8.AttachmentSupport = (doc.YZ_Plane, [""])
sketch8.MapMode = "FlatFace"
sketch8.AttachmentOffset = App.Placement(V(0, 0, 237.5), App.Rotation())
sketch8.addGeometry(Part.LineSegment(V(2, -15, 0), V(-9.351936, -15, 0)), False)
sketch8.addGeometry(Part.LineSegment(V(-9.351936, -15, 0), V(-8, -12.75, 0)), False)
sketch8.addGeometry(Part.LineSegment(V(-8, -12.75, 0), V(2, -12.75, 0)), False)
sketch8.addGeometry(Part.LineSegment(V(2, -12.75, 0), V(2, -15, 0)), False)
sketch8.addGeometry(Part.LineSegment(V(-9.351936, -15, 0), V(2, -15, 0)), True)  # axis
sketch8.addConstraint(Sketcher.Constraint("Coincident", 0, 2, 1, 1))
sketch8.addConstraint(Sketcher.Constraint("Coincident", 1, 2, 2, 1))
sketch8.addConstraint(Sketcher.Constraint("Coincident", 2, 2, 3, 1))
sketch8.addConstraint(Sketcher.Constraint("Coincident", 3, 2, 0, 1))
sketch8.addConstraint(Sketcher.Constraint("Horizontal", 0))
sketch8.addConstraint(Sketcher.Constraint("Horizontal", 2))
sketch8.addConstraint(Sketcher.Constraint("Vertical", 3))
sketch8.addConstraint(Sketcher.Constraint("Horizontal", 4))
sketch8.addConstraint(Sketcher.Constraint("Coincident", 4, 1, 0, 2))
sketch8.addConstraint(Sketcher.Constraint("Vertical", 2, 2, 4, 2))
sketch8.addConstraint(Sketcher.Constraint("DistanceX", 2, 1, 2, 2, 10.0))
sketch8.addConstraint(Sketcher.Constraint("Angle", 1, Q("59 deg")))
sketch8.addConstraint(Sketcher.Constraint("DistanceY", 0, 2, -1, 1, 15.0))
sketch8.addConstraint(Sketcher.Constraint("DistanceX", 1, 2, -1, 1, 8.0))
sketch8.addConstraint(Sketcher.Constraint("DistanceY", 3, 2, 3, 1, 2.25))
groove4 = doc.addObject("PartDesign::Groove", "Groove003")
body.addObject(groove4)
groove4.Profile = sketch8
groove4.ReferenceAxis = (sketch8, ["Axis0"])
groove4.Angle = 360

# Sketch on XZ plane
sketch9 = doc.addObject("Sketcher::SketchObject", "Sketch008")
body.addObject(sketch9)
sketch9.AttachmentSupport = (doc.XZ_Plane, [""])
sketch9.MapMode = "FlatFace"
sketch9.addGeometry(Part.LineSegment(V(105.1, -175, 0), V(105.1, -195, 0)), False)
sketch9.addGeometry(Part.LineSegment(V(105.1, -195, 0), V(109.9, -195, 0)), False)
sketch9.addGeometry(Part.LineSegment(V(109.9, -195, 0), V(109.9, -175, 0)), False)
sketch9.addGeometry(Part.LineSegment(V(109.9, -175, 0), V(105.1, -175, 0)), False)
sketch9.addConstraint(Sketcher.Constraint("Coincident", 0, 2, 1, 1))
sketch9.addConstraint(Sketcher.Constraint("Coincident", 1, 2, 2, 1))
sketch9.addConstraint(Sketcher.Constraint("Coincident", 2, 2, 3, 1))
sketch9.addConstraint(Sketcher.Constraint("Coincident", 3, 2, 0, 1))
sketch9.addConstraint(Sketcher.Constraint("Vertical", 0))
sketch9.addConstraint(Sketcher.Constraint("Horizontal", 1))
sketch9.addConstraint(Sketcher.Constraint("Vertical", 2))
sketch9.addConstraint(Sketcher.Constraint("Horizontal", 3))
sketch9.addConstraint(Sketcher.Constraint("DistanceY", 0, 2, 0, 1, 20.0))
sketch9.addConstraint(Sketcher.Constraint("DistanceX", 1, 1, 1, 2, 4.8))
sketch9.addConstraint(Sketcher.Constraint("DistanceY", 0, 2, -1, 1, 195.0))
sketch9.addConstraint(Sketcher.Constraint("DistanceX", -1, 1, 0, 2, 105.1))
pocket3 = doc.addObject("PartDesign::Pocket", "Pocket002")
body.addObject(pocket3)
pocket3.Profile = sketch9
pocket3.Type = "ThroughAll"
doc.recompute()

datumplane5 = doc.addObject("PartDesign::Plane", "DatumPlane004")
body.addObject(datumplane5)
datumplane5.AttachmentSupport = (doc.YZ_Plane, [""])
datumplane5.MapMode = "FlatFace"
datumplane5.AttachmentOffset = App.Placement(V(0, 0, 125), App.Rotation())
mirrored5 = doc.addObject("PartDesign::Mirrored", "Mirrored004")
body.addObject(mirrored5)
mirrored5.Originals = [pocket3]
mirrored5.MirrorPlane = (datumplane5, [""])
body.Tip = mirrored5

# Sketch on XZ plane
sketch10 = doc.addObject("Sketcher::SketchObject", "Sketch009")
body.addObject(sketch10)
sketch10.AttachmentSupport = (doc.XZ_Plane, [""])
sketch10.MapMode = "FlatFace"
sketch10.addGeometry(Part.Circle(V(15, -210, 0), V(0, 0, 1), 2.1), False)
sketch10.addGeometry(Part.Circle(V(235, -210, 0), V(0, 0, 1), 2.1), False)
sketch10.addConstraint(Sketcher.Constraint("Equal", 0, 1))
sketch10.addConstraint(Sketcher.Constraint("Horizontal", 0, 3, 1, 3))
sketch10.addConstraint(Sketcher.Constraint("Diameter", 0, 4.2))
sketch10.addConstraint(Sketcher.Constraint("DistanceX", -1, 1, 0, 3, 15.0))
sketch10.addConstraint(Sketcher.Constraint("DistanceY", 0, 3, -1, 1, 210.0))
sketch10.addConstraint(Sketcher.Constraint("DistanceX", -1, 1, 1, 3, 235.0))
pocket4 = doc.addObject("PartDesign::Pocket", "Pocket003")
body.addObject(pocket4)
pocket4.Profile = sketch10
pocket4.Length = 5

# Sketch on XZ plane
sketch11 = doc.addObject("Sketcher::SketchObject", "Sketch010")
body.addObject(sketch11)
sketch11.AttachmentSupport = (doc.XZ_Plane, [""])
sketch11.MapMode = "FlatFace"
sketch11.addGeometry(Part.Circle(V(38.4, -200, 0), V(0, 0, 1), 2.25), False)
sketch11.addGeometry(Part.Circle(V(211.6, -200, 0), V(0, 0, 1), 2.25), False)
sketch11.addConstraint(Sketcher.Constraint("Equal", 0, 1))
sketch11.addConstraint(Sketcher.Constraint("Horizontal", 0, 3, 1, 3))
sketch11.addConstraint(Sketcher.Constraint("Diameter", 0, 4.5))
sketch11.addConstraint(Sketcher.Constraint("DistanceY", 0, 3, -1, 1, 200.0))
sketch11.addConstraint(Sketcher.Constraint("DistanceX", -1, 1, 0, 3, 38.4))
sketch11.addConstraint(Sketcher.Constraint("DistanceX", -1, 1, 1, 3, 211.6))
pocket5 = doc.addObject("PartDesign::Pocket", "Pocket004")
body.addObject(pocket5)
pocket5.Profile = sketch11
pocket5.Type = "ThroughAll"
pocket5.Midplane = True

doc.recompute()
